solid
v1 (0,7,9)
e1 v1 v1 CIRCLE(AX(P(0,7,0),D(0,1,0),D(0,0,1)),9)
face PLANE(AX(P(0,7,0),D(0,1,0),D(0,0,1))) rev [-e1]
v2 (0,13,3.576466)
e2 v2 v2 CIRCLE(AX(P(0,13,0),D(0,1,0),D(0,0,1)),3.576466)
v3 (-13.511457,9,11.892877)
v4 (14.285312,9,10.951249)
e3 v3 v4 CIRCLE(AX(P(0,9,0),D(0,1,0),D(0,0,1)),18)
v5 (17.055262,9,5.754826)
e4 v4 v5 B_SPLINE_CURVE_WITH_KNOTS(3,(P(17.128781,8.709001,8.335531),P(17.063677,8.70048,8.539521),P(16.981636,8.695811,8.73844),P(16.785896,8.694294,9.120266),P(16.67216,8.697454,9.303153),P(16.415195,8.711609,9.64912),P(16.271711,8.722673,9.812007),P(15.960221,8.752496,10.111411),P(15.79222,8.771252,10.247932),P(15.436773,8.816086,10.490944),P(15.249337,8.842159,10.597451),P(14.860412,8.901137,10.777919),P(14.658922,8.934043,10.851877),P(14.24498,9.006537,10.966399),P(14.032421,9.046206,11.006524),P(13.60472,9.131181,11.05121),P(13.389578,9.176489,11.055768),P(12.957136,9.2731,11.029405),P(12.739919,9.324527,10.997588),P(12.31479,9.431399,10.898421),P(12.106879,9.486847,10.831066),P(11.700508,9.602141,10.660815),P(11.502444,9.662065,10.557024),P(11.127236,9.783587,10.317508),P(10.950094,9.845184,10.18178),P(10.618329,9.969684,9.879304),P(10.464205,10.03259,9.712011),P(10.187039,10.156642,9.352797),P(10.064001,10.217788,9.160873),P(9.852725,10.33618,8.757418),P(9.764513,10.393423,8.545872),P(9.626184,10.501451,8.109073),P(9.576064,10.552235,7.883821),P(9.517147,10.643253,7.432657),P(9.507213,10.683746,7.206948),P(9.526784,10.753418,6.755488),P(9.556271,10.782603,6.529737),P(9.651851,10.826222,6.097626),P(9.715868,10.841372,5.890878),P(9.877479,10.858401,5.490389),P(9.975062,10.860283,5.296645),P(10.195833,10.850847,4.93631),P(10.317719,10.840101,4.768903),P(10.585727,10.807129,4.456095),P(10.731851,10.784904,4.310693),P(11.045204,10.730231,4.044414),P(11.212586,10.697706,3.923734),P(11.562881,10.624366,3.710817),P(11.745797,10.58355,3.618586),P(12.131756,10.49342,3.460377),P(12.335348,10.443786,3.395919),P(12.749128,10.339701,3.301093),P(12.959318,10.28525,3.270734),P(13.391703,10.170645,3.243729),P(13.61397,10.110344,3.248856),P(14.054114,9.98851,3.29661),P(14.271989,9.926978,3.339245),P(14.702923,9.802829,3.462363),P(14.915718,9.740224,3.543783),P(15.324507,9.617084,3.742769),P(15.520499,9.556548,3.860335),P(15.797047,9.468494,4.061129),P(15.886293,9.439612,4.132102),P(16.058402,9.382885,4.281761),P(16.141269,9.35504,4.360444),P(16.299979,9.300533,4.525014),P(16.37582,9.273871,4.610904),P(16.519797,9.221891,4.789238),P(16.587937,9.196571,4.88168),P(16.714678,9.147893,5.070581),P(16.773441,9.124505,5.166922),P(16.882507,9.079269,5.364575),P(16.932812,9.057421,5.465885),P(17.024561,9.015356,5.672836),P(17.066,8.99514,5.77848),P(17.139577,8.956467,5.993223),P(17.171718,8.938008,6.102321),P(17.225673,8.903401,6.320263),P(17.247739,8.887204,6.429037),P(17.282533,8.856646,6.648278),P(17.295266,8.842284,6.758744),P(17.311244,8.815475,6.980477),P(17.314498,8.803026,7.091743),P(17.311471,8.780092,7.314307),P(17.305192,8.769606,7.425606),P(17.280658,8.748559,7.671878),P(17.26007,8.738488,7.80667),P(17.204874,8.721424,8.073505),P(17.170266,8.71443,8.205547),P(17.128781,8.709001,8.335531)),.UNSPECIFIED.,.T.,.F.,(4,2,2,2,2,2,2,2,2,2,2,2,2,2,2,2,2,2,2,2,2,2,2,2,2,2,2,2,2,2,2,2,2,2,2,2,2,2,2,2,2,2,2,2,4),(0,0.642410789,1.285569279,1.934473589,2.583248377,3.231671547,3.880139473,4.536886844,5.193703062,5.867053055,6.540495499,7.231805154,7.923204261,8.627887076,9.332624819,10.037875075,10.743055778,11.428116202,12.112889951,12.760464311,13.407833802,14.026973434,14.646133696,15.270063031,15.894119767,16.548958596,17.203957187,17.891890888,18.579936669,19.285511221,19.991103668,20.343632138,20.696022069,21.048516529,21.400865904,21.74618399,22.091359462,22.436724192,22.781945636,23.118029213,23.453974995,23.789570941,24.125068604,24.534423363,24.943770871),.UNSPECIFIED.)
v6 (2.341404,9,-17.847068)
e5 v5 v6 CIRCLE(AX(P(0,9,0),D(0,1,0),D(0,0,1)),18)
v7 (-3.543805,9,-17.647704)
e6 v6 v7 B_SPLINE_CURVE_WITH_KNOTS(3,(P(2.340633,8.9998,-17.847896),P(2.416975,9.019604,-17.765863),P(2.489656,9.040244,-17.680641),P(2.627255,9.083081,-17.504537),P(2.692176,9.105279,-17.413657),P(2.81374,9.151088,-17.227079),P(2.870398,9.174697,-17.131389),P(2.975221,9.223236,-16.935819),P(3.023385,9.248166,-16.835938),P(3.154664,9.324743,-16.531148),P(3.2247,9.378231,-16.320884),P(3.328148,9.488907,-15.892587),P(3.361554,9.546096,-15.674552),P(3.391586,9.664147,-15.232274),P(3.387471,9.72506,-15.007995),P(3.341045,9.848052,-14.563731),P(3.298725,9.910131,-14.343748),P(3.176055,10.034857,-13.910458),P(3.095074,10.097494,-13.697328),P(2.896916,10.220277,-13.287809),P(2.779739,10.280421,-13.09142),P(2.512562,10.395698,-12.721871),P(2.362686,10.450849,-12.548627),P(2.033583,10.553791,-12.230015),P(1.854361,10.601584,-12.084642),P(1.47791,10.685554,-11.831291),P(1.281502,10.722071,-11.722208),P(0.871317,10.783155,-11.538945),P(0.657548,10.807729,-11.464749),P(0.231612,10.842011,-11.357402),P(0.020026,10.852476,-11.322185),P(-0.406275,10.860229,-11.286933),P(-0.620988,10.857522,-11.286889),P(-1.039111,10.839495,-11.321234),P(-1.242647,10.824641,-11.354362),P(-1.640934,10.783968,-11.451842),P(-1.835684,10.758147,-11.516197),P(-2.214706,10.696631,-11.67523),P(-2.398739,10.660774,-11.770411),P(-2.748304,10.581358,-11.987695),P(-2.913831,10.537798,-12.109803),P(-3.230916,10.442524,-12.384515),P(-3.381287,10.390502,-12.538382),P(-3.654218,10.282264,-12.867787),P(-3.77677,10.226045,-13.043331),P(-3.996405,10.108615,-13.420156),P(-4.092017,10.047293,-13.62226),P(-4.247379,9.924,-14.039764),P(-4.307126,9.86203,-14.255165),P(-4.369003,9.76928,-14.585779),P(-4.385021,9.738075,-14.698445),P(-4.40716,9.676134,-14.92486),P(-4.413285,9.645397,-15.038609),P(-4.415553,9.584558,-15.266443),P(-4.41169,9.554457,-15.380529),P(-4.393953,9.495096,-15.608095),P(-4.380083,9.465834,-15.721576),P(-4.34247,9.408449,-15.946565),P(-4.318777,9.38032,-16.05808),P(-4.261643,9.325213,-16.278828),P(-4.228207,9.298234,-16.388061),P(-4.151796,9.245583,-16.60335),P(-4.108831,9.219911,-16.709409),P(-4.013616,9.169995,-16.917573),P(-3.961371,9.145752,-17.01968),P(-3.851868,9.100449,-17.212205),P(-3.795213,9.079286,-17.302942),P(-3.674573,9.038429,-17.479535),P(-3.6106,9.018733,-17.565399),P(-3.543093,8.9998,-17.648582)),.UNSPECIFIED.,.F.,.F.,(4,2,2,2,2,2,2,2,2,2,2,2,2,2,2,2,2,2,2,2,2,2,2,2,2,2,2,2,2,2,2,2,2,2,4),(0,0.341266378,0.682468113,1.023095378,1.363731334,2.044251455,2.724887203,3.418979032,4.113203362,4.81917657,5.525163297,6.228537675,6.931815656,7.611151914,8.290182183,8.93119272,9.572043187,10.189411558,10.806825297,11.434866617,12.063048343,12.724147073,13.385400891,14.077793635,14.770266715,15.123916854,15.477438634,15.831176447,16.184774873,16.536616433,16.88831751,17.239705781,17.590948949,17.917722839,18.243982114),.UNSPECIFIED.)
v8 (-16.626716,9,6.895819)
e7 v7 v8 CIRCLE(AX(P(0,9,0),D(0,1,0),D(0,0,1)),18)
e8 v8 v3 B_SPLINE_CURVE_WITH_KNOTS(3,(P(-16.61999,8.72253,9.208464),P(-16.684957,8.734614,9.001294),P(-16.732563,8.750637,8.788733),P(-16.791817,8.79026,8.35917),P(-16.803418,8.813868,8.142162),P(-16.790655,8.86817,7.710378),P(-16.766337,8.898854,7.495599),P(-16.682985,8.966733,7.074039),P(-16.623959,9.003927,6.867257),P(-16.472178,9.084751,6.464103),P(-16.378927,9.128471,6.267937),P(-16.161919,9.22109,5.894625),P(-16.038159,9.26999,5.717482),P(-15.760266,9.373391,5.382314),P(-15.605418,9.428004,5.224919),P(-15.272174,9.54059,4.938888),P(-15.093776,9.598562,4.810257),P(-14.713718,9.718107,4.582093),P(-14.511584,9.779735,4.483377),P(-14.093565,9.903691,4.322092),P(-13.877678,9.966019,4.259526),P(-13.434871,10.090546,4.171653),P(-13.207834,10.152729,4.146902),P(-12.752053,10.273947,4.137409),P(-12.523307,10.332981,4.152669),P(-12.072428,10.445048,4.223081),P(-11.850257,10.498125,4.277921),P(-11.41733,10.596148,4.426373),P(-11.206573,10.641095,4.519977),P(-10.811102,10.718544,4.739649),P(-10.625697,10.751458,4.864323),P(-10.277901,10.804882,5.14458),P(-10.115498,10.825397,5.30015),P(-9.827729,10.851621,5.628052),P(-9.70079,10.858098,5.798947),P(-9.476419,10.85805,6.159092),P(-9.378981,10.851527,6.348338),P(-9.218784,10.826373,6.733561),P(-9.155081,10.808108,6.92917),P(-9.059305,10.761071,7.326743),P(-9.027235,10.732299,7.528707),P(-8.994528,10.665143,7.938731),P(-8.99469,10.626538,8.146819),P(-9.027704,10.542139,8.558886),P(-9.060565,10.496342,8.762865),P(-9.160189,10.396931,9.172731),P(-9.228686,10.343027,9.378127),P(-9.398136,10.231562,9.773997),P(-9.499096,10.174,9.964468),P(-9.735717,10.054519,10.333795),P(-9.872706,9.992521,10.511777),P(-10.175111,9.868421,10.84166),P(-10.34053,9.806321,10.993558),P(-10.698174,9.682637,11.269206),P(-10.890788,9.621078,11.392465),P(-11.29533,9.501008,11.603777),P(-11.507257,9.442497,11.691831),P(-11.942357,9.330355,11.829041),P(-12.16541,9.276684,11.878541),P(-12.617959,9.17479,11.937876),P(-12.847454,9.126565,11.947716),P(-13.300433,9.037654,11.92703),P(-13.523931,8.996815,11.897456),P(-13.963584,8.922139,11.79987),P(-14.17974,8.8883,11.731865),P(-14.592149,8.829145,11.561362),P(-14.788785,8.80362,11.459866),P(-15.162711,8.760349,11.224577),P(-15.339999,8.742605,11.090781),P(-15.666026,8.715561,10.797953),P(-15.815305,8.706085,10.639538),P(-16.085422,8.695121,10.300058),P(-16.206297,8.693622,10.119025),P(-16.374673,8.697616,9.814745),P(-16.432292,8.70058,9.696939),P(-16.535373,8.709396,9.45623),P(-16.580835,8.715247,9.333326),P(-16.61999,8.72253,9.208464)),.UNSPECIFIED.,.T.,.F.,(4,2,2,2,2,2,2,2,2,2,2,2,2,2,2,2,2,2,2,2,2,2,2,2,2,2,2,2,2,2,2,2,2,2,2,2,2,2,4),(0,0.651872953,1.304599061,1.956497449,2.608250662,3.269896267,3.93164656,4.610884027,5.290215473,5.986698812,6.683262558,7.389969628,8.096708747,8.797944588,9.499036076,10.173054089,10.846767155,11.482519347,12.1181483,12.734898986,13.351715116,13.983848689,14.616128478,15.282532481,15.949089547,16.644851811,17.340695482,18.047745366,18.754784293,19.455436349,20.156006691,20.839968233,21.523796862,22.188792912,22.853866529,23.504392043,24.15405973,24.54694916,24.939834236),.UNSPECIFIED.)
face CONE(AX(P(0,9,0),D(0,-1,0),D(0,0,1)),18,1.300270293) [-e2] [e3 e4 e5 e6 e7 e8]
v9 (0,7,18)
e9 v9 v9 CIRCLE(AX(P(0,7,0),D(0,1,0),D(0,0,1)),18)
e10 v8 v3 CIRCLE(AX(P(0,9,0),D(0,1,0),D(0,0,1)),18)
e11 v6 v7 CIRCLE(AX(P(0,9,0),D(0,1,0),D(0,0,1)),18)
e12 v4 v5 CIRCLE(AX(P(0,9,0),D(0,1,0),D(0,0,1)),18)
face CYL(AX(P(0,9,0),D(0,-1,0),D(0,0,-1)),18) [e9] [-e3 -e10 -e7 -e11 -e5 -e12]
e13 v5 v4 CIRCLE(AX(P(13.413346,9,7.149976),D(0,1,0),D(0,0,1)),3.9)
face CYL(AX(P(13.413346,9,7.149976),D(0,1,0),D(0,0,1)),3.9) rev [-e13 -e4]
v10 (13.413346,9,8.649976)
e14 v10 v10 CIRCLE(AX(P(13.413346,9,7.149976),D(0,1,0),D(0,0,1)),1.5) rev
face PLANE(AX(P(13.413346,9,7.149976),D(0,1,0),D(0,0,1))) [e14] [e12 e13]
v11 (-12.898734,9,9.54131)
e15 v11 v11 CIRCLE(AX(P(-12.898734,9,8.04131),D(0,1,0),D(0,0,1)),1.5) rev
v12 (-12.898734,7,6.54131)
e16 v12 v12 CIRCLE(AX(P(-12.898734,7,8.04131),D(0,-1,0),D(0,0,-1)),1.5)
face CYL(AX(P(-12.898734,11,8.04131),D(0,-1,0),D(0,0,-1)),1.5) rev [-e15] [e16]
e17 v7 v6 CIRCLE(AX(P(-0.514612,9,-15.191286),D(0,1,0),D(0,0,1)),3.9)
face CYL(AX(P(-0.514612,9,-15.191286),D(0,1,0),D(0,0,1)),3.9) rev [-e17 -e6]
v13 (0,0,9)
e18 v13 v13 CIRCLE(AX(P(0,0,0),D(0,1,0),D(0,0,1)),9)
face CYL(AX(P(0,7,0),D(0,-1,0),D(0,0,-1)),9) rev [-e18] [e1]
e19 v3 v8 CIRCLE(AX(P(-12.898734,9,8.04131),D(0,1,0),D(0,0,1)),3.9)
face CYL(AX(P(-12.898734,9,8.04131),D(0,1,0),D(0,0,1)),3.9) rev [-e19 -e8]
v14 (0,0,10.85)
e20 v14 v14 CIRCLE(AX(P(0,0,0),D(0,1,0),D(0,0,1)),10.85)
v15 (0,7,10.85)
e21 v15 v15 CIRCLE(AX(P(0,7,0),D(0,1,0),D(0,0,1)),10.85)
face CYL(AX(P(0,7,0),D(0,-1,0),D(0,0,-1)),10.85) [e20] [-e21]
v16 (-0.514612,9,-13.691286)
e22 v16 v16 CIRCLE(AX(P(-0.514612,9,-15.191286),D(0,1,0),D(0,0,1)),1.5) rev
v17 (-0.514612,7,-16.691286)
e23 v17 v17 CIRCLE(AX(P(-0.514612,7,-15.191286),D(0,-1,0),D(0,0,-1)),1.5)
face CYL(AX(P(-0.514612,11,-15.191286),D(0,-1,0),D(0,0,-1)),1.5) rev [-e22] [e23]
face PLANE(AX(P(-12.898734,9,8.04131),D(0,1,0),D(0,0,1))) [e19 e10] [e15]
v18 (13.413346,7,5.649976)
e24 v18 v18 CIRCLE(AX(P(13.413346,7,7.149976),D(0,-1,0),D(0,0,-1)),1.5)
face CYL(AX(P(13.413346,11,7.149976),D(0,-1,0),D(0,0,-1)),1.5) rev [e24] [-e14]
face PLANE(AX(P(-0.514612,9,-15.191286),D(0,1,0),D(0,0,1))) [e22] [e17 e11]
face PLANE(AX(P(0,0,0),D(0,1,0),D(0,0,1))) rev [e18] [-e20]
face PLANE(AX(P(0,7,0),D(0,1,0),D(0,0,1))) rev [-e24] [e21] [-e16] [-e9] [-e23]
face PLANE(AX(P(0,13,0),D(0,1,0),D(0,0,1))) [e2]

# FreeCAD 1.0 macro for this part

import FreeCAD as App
import Part
import Sketcher

doc = App.newDocument("Part")
body = doc.addObject("PartDesign::Body", "Body")

# Sketch on XZ plane
sketch1 = body.newObject("Sketcher::SketchObject", "Sketch")
sketch1.AttachmentSupport = (doc.getObject("XZ_Plane"), [""])
sketch1.MapMode = "FlatFace"
sketch1.addGeometry(Part.Circle(App.Vector(0, 0, 0), App.Vector(0, 0, 1), 10.85), False)
sketch1.addGeometry(Part.Circle(App.Vector(0, 0, 0), App.Vector(0, 0, 1), 9), False)
sketch1.addConstraint(Sketcher.Constraint("Coincident", 0, 3, -1, 1))
sketch1.addConstraint(Sketcher.Constraint("Coincident", 1, 3, -1, 1))
sketch1.addConstraint(Sketcher.Constraint("Diameter", 1, 18.0))
sketch1.addConstraint(Sketcher.Constraint("Diameter", 0, 21.7))
pad1 = body.newObject("PartDesign::Pad", "Pad")
pad1.Profile = sketch1
pad1.Length = 7
pad1.Reversed = True

# Sketch on XZ plane
sketch2 = body.newObject("Sketcher::SketchObject", "Sketch001")
sketch2.AttachmentSupport = (doc.getObject("XZ_Plane"), [""])
sketch2.MapMode = "FlatFace"
sketch2.AttachmentOffset = App.Placement(App.Vector(0, 0, -7), App.Rotation())
sketch2.addGeometry(Part.Circle(App.Vector(0, 0, 0), App.Vector(0, 0, 1), 18), False)
sketch2.addConstraint(Sketcher.Constraint("Coincident", 0, 3, -1, 1))
sketch2.addConstraint(Sketcher.Constraint("Diameter", 0, 36.0))
pad2 = body.newObject("PartDesign::Pad", "Pad001")
pad2.Profile = sketch2
pad2.Length = 2
pad2.Reversed = True

# Sketch on XZ plane
sketch3 = body.newObject("Sketcher::SketchObject", "Sketch002")
sketch3.AttachmentSupport = (doc.getObject("XZ_Plane"), [""])
sketch3.MapMode = "FlatFace"
sketch3.AttachmentOffset = App.Placement(App.Vector(0, 0, -9), App.Rotation())
sketch3.addGeometry(Part.Circle(App.Vector(0, 0, 0), App.Vector(0, 0, 1), 18), False)
sketch3.addConstraint(Sketcher.Constraint("Coincident", 0, 3, -1, 1))
sketch3.addConstraint(Sketcher.Constraint("Diameter", 0, 36.0))
pad3 = body.newObject("PartDesign::Pad", "Pad002")
pad3.Profile = sketch3
pad3.Length = 4
pad3.Reversed = True
pad3.TaperAngle = -74.5

# Sketch on XZ plane
sketch4 = body.newObject("Sketcher::SketchObject", "Sketch003")
sketch4.AttachmentSupport = (doc.getObject("XZ_Plane"), [""])
sketch4.MapMode = "FlatFace"
sketch4.AttachmentOffset = App.Placement(App.Vector(0, 0, -7), App.Rotation())
sketch4.addGeometry(Part.Circle(App.Vector(-12.898734, 8.04131, 0), App.Vector(0, 0, 1), 1.5), False)
sketch4.addGeometry(Part.Circle(App.Vector(13.413346, 7.149976, 0), App.Vector(0, 0, 1), 1.5), False)
sketch4.addGeometry(Part.Circle(App.Vector(-0.514612, -15.191286, 0), App.Vector(0, 0, 1), 1.5), False)
sketch4.addConstraint(Sketcher.Constraint("Equal", 0, 1))
sketch4.addConstraint(Sketcher.Constraint("Equal", 1, 2))
sketch4.addConstraint(Sketcher.Constraint("Diameter", 0, 3.0))
sketch4.addConstraint(Sketcher.Constraint("DistanceY", -1, 1, 0, 3, 8.04131))
sketch4.addConstraint(Sketcher.Constraint("DistanceX", 2, 3, -1, 1, 0.514612))
sketch4.addConstraint(Sketcher.Constraint("DistanceX", 0, 3, 1, 3, 26.312079))
sketch4.addConstraint(Sketcher.Constraint("DistanceX", 0, 3, 2, 3, 12.384122))
sketch4.addConstraint(Sketcher.Constraint("DistanceY", -1, 1, 1, 3, 7.149976))
sketch4.addConstraint(Sketcher.Constraint("DistanceY", 2, 3, -1, 1, 15.191286))
pocket1 = body.newObject("PartDesign::Pocket", "Pocket")
pocket1.Profile = sketch4
pocket1.Length = 4

# Sketch on XZ plane
sketch5 = body.newObject("Sketcher::SketchObject", "Sketch004")
sketch5.AttachmentSupport = (doc.getObject("XZ_Plane"), [""])
sketch5.MapMode = "FlatFace"
sketch5.AttachmentOffset = App.Placement(App.Vector(0, 0, -13), App.Rotation())
sketch5.addGeometry(Part.Circle(App.Vector(-0.514612, -15.191286, 0), App.Vector(0, 0, 1), 3.9), False)
sketch5.addGeometry(Part.Circle(App.Vector(13.413346, 7.149976, 0), App.Vector(0, 0, 1), 3.9), False)
sketch5.addGeometry(Part.Circle(App.Vector(-12.898734, 8.04131, 0), App.Vector(0, 0, 1), 3.9), False)
sketch5.addConstraint(Sketcher.Constraint("Equal", 0, 1))
sketch5.addConstraint(Sketcher.Constraint("Equal", 1, 2))
sketch5.addConstraint(Sketcher.Constraint("Diameter", 0, 7.8))
sketch5.addConstraint(Sketcher.Constraint("DistanceX", 0, 3, -1, 1, 0.514612))
sketch5.addConstraint(Sketcher.Constraint("DistanceY", -1, 1, 2, 3, 8.04131))
sketch5.addConstraint(Sketcher.Constraint("DistanceX", 2, 3, 0, 3, 12.384122))
sketch5.addConstraint(Sketcher.Constraint("DistanceX", 2, 3, 1, 3, 26.312079))
sketch5.addConstraint(Sketcher.Constraint("DistanceY", 0, 3, -1, 1, 15.191286))
sketch5.addConstraint(Sketcher.Constraint("DistanceY", -1, 1, 1, 3, 7.149976))
pocket2 = body.newObject("PartDesign::Pocket", "Pocket001")
pocket2.Profile = sketch5
pocket2.Length = 4
pocket2.Reversed = True

doc.recompute()
